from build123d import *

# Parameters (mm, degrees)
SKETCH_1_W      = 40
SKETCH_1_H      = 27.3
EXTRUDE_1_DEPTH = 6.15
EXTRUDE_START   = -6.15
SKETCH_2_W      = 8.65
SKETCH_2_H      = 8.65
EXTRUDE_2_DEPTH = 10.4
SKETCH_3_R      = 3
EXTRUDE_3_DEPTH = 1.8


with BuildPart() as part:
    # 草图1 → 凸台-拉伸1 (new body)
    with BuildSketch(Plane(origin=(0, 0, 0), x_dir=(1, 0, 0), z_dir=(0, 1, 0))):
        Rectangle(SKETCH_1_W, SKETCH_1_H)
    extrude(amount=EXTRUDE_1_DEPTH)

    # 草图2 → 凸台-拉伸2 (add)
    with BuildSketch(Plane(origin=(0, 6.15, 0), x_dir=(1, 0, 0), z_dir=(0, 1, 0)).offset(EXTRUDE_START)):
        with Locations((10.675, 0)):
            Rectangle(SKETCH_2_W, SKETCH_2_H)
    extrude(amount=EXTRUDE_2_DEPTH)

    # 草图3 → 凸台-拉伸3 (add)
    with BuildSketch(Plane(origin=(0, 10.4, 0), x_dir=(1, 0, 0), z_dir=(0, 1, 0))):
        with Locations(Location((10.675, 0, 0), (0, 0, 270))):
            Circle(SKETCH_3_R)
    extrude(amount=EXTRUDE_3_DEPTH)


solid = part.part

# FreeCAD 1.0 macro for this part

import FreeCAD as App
import Part
import Sketcher
Q = App.Units.Quantity

doc = App.newDocument("Part")
body = doc.addObject("PartDesign::Body", "Body")

# Sketch on XZ plane
sketch1 = body.newObject("Sketcher::SketchObject", "Sketch")
sketch1.AttachmentSupport = (doc.getObject("XZ_Plane"), [""])
sketch1.MapMode = "FlatFace"
sketch1.addGeometry([
    Part.LineSegment(App.Vector(-20, -14, 0), App.Vector(-20, 14, 0)),
    Part.LineSegment(App.Vector(-20, 14, 0), App.Vector(20, 14, 0)),
    Part.LineSegment(App.Vector(20, 14, 0), App.Vector(20, -14, 0)),
    Part.LineSegment(App.Vector(20, -14, 0), App.Vector(-20, -14, 0)),
], False)
sketch1.addConstraint([
    Sketcher.Constraint("Coincident", 0, 2, 1, 1),
    Sketcher.Constraint("Coincident", 1, 2, 2, 1),
    Sketcher.Constraint("Coincident", 2, 2, 3, 1),
    Sketcher.Constraint("Coincident", 3, 2, 0, 1),
    Sketcher.Constraint("Vertical", 0),
    Sketcher.Constraint("Horizontal", 1),
    Sketcher.Constraint("Vertical", 2),
    Sketcher.Constraint("Horizontal", 3),
    Sketcher.Constraint("Symmetric", 0, 2, 2, 2, -1, 1),
    Sketcher.Constraint("DistanceX", 1, 1, 1, 2, Q("40 mm")),
    Sketcher.Constraint("DistanceY", 0, 1, 0, 2, Q("27.3 mm")),
])
pad1 = body.newObject("PartDesign::Pad", "Pad")
pad1.Profile = sketch1
pad1.Length = 6.15
pad1.Reversed = True

# Sketch on XZ plane
sketch2 = body.newObject("Sketcher::SketchObject", "Sketch001")
sketch2.AttachmentSupport = (doc.getObject("XZ_Plane"), [""])
sketch2.MapMode = "FlatFace"
sketch2.addGeometry([
    Part.LineSegment(App.Vector(6, -4, 0), App.Vector(6, 4, 0)),
    Part.LineSegment(App.Vector(6, 4, 0), App.Vector(15, 4, 0)),
    Part.LineSegment(App.Vector(15, 4, 0), App.Vector(15, -4, 0)),
    Part.LineSegment(App.Vector(15, -4, 0), App.Vector(6, -4, 0)),
], False)
sketch2.addConstraint([
    Sketcher.Constraint("Coincident", 0, 2, 1, 1),
    Sketcher.Constraint("Coincident", 1, 2, 2, 1),
    Sketcher.Constraint("Coincident", 2, 2, 3, 1),
    Sketcher.Constraint("Coincident", 3, 2, 0, 1),
    Sketcher.Constraint("Vertical", 0),
    Sketcher.Constraint("Horizontal", 1),
    Sketcher.Constraint("Vertical", 2),
    Sketcher.Constraint("Horizontal", 3),
    Sketcher.Constraint("Equal", 3, 0),
    Sketcher.Constraint("DistanceX", -1, 1, 1, 2, Q("15 mm")),
    Sketcher.Constraint("DistanceX", 1, 1, 1, 2, Q("8.65 mm")),
    Sketcher.Constraint("DistanceY", -1, 1, 0, 2, Q("4.325 mm")),
])
pad2 = body.newObject("PartDesign::Pad", "Pad001")
pad2.Profile = sketch2
pad2.Length = 10.4
pad2.Reversed = True

# Sketch on XZ plane
sketch3 = body.newObject("Sketcher::SketchObject", "Sketch002")
sketch3.AttachmentSupport = (doc.getObject("XZ_Plane"), [""])
sketch3.MapMode = "FlatFace"
sketch3.AttachmentOffset = App.Placement(App.Vector(0, 0, -10.4), App.Rotation())
sketch3.addGeometry(Part.Circle(App.Vector(10.7, 0, 0), App.Vector(0, 0, 1), 3), False)
sketch3.addConstraint([
    Sketcher.Constraint("PointOnObject", 0, 3, -1),
    Sketcher.Constraint("Diameter", 0, Q("6 mm")),
    Sketcher.Constraint("DistanceX", -1, 1, 0, 3, Q("10.675 mm")),
])
pad3 = body.newObject("PartDesign::Pad", "Pad002")
pad3.Profile = sketch3
pad3.Length = 1.8
pad3.Reversed = True

doc.recompute()
